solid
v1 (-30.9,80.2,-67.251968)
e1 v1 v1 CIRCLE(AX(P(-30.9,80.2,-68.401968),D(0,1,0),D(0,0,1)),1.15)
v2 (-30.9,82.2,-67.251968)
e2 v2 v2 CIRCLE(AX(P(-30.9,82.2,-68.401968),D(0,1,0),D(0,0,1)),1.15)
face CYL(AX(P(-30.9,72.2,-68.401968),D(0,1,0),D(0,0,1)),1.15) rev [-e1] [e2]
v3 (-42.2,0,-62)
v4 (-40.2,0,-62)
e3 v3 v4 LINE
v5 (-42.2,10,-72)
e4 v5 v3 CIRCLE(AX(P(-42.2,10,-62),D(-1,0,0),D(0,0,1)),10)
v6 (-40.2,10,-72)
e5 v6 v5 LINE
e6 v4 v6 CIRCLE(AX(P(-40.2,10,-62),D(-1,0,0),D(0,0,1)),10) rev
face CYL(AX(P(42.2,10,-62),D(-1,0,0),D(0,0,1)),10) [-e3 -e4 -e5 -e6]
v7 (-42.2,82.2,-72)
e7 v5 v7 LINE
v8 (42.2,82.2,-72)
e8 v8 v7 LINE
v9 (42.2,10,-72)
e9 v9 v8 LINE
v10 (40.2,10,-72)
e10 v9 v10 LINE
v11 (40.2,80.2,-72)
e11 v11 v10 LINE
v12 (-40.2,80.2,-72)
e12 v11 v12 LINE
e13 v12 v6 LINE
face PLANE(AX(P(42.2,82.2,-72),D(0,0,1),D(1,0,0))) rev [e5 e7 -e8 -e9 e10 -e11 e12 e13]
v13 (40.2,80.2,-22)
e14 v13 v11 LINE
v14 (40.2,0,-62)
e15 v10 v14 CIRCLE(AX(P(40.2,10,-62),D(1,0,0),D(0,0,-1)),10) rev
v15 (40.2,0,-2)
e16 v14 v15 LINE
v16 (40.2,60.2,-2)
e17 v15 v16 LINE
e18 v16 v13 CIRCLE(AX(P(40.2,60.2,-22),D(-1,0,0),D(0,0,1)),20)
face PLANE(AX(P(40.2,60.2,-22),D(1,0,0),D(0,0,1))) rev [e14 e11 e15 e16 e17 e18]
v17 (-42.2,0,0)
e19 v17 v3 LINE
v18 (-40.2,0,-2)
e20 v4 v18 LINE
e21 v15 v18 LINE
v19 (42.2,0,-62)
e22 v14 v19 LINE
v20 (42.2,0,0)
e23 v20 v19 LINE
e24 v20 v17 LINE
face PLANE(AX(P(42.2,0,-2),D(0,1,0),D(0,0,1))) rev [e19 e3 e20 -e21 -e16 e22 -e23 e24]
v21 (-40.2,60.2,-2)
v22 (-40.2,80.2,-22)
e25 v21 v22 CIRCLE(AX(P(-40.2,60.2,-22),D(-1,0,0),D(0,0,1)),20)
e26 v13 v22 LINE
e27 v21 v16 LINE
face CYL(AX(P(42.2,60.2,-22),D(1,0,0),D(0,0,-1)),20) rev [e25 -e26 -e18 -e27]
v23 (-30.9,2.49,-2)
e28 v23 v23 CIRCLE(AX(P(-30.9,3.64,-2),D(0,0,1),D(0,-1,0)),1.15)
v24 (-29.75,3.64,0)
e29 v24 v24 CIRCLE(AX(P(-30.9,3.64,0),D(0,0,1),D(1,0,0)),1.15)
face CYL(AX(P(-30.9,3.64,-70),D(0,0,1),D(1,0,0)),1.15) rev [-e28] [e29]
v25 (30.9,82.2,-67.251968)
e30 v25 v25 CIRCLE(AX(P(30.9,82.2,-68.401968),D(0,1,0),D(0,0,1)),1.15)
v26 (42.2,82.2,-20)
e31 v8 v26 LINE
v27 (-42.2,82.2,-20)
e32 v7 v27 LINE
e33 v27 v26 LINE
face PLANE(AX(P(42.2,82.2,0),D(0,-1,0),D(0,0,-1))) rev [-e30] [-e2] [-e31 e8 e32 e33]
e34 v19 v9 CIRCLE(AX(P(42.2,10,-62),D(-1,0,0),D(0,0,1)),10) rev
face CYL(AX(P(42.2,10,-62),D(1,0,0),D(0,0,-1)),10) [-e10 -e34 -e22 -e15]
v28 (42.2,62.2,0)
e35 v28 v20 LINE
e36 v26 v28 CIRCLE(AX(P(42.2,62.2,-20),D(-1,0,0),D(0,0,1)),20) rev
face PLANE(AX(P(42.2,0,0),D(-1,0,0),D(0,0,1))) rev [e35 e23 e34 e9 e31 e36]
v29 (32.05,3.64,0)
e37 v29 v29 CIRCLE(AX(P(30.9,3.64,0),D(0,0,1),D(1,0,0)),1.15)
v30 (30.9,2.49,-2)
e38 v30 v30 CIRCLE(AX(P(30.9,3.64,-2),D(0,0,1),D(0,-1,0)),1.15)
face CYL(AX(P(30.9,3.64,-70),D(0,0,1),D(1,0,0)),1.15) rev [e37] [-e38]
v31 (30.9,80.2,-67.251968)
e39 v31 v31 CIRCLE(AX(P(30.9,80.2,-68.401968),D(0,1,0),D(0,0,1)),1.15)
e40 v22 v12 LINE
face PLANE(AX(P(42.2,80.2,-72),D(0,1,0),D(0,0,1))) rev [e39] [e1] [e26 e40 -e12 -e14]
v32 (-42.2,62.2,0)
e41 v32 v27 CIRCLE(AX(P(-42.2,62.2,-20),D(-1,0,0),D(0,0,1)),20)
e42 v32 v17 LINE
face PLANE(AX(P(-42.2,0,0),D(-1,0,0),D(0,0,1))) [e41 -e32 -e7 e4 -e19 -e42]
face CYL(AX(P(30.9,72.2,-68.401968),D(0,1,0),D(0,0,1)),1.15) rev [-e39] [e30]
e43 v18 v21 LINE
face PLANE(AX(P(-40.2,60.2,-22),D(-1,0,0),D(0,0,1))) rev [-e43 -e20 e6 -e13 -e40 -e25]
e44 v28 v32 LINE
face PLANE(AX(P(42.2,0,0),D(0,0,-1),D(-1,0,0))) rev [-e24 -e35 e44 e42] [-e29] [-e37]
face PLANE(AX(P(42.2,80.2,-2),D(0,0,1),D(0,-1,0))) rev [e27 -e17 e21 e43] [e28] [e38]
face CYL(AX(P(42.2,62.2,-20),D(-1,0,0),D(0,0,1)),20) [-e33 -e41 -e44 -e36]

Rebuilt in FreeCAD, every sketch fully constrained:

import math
import FreeCAD as App
import Part
import Sketcher
Q = App.Units.Quantity


def edges_at(feature, points):
    """Names of the edges that pass closest to the given points."""
    edges = feature.Shape.Edges
    near = lambda p: min(range(len(edges)), key=lambda i: edges[i].distToShape(Part.Vertex(*p))[0])
    return sorted({f"Edge{near(p) + 1}" for p in points})

doc = App.newDocument("Part")
body = doc.addObject("PartDesign::Body", "Body")

# Sketch on YZ plane
sketch1 = body.newObject("Sketcher::SketchObject", "Sketch")
sketch1.AttachmentSupport = (doc.getObject("YZ_Plane"), [""])
sketch1.MapMode = "FlatFace"
sketch1.addGeometry(Part.LineSegment(App.Vector(82.2, 0, 0), App.Vector(0, 0, 0)), False)
sketch1.addGeometry(Part.LineSegment(App.Vector(0, 0, 0), App.Vector(0, -2, 0)), False)
sketch1.addGeometry(Part.LineSegment(App.Vector(0, -2, 0), App.Vector(80.2, -2, 0)), False)
sketch1.addGeometry(Part.LineSegment(App.Vector(80.2, -2, 0), App.Vector(80.2, -72, 0)), False)
sketch1.addGeometry(Part.LineSegment(App.Vector(80.2, -72, 0), App.Vector(82.2, -72, 0)), False)
sketch1.addGeometry(Part.LineSegment(App.Vector(82.2, -72, 0), App.Vector(82.2, 0, 0)), False)
sketch1.addConstraint(Sketcher.Constraint("Coincident", 0, 2, 1, 1))
sketch1.addConstraint(Sketcher.Constraint("Coincident", 1, 2, 2, 1))
sketch1.addConstraint(Sketcher.Constraint("Coincident", 2, 2, 3, 1))
sketch1.addConstraint(Sketcher.Constraint("Coincident", 3, 2, 4, 1))
sketch1.addConstraint(Sketcher.Constraint("Coincident", 4, 2, 5, 1))
sketch1.addConstraint(Sketcher.Constraint("Coincident", 5, 2, 0, 1))
sketch1.addConstraint(Sketcher.Constraint("Horizontal", 0))
sketch1.addConstraint(Sketcher.Constraint("Vertical", 1))
sketch1.addConstraint(Sketcher.Constraint("Horizontal", 2))
sketch1.addConstraint(Sketcher.Constraint("Vertical", 3))
sketch1.addConstraint(Sketcher.Constraint("Horizontal", 4))
sketch1.addConstraint(Sketcher.Constraint("Vertical", 5))
sketch1.addConstraint(Sketcher.Constraint("Coincident", 0, 2, -1, 1))
sketch1.addConstraint(Sketcher.Constraint("Equal", 4, 1))
sketch1.addConstraint(Sketcher.Constraint("DistanceX", 4, 1, 4, 2, Q("2 mm")))
sketch1.addConstraint(Sketcher.Constraint("DistanceY", 3, 2, 3, 1, Q("70 mm")))
sketch1.addConstraint(Sketcher.Constraint("DistanceX", 0, 2, 0, 1, Q("82.2 mm")))
pad1 = body.newObject("PartDesign::Pad", "Pad")
pad1.Profile = sketch1
pad1.Length = 84.4
pad1.Midplane = True

# Sketch on XY plane
sketch2 = body.newObject("Sketcher::SketchObject", "Sketch001")
sketch2.AttachmentSupport = (doc.getObject("XY_Plane"), [""])
sketch2.MapMode = "FlatFace"
sketch2.addGeometry(Part.Circle(App.Vector(-30.9, 3.6, 0), App.Vector(0, 0, 1), 1.1), False)
sketch2.addGeometry(Part.Circle(App.Vector(30.9, 3.6, 0), App.Vector(0, 0, 1), 1.1), False)
sketch2.addConstraint(Sketcher.Constraint("Equal", 0, 1))
sketch2.addConstraint(Sketcher.Constraint("Symmetric", 0, 3, 1, 3, -2))
sketch2.addConstraint(Sketcher.Constraint("Diameter", 0, Q("2.3 mm")))
sketch2.addConstraint(Sketcher.Constraint("DistanceX", 0, 3, -1, 1, Q("30.9 mm")))
sketch2.addConstraint(Sketcher.Constraint("DistanceY", -1, 1, 0, 3, Q("3.64 mm")))
pocket1 = body.newObject("PartDesign::Pocket", "Pocket")
pocket1.Profile = sketch2
pocket1.Length = 70
doc.recompute()

fillet = body.newObject("PartDesign::Fillet", "Fillet")
fillet.Base = (pocket1, edges_at(pocket1, [(0, 82.2, 0), (0, 80.2, -2)]))
fillet.Radius = 20

# Sketch on YZ plane
sketch3 = body.newObject("Sketcher::SketchObject", "Sketch002")
sketch3.AttachmentSupport = (doc.getObject("YZ_Plane"), [""])
sketch3.MapMode = "FlatFace"
sketch3.AttachmentOffset = App.Placement(App.Vector(0, 0, -42.2), App.Rotation())
sketch3.addGeometry(Part.LineSegment(App.Vector(80, -72, 0), App.Vector(0, -72, 0)), False)
sketch3.addGeometry(Part.LineSegment(App.Vector(0, -72, 0), App.Vector(0, -2, 0)), False)
sketch3.addGeometry(Part.LineSegment(App.Vector(0, -2, 0), App.Vector(60, -2, 0)), False)
sketch3.addGeometry(Part.ArcOfCircle(Part.Circle(App.Vector(60, -22, 0), App.Vector(0, 0, 1), 20), math.radians(0), math.radians(90)), False)
sketch3.addGeometry(Part.LineSegment(App.Vector(80, -22, 0), App.Vector(80, -72, 0)), False)
sketch3.addConstraint(Sketcher.Constraint("Coincident", 0, 2, 1, 1))
sketch3.addConstraint(Sketcher.Constraint("Coincident", 1, 2, 2, 1))
sketch3.addConstraint(Sketcher.Constraint("Tangent", 2, 2, 3, 2))
sketch3.addConstraint(Sketcher.Constraint("Tangent", 3, 1, 4, 1))
sketch3.addConstraint(Sketcher.Constraint("Coincident", 4, 2, 0, 1))
sketch3.addConstraint(Sketcher.Constraint("Horizontal", 0))
sketch3.addConstraint(Sketcher.Constraint("Vertical", 1))
sketch3.addConstraint(Sketcher.Constraint("Horizontal", 2))
sketch3.addConstraint(Sketcher.Constraint("Vertical", 4))
sketch3.addConstraint(Sketcher.Constraint("PointOnObject", 0, 2, -2))
sketch3.addConstraint(Sketcher.Constraint("Radius", 3, Q("20 mm")))
sketch3.addConstraint(Sketcher.Constraint("DistanceY", 1, 1, 1, 2, Q("70 mm")))
sketch3.addConstraint(Sketcher.Constraint("DistanceX", 0, 2, 0, 1, Q("80.2 mm")))
sketch3.addConstraint(Sketcher.Constraint("DistanceY", 3, 3, -1, 1, Q("22 mm")))
pad2 = body.newObject("PartDesign::Pad", "Pad001")
pad2.Profile = sketch3
pad2.Length = 2
doc.recompute()

mirrored = body.newObject("PartDesign::Mirrored", "Mirrored")
mirrored.Originals = [pad2]
mirrored.MirrorPlane = (doc.getObject("YZ_Plane"), [""])
body.Tip = mirrored
doc.recompute()

fillet2 = body.newObject("PartDesign::Fillet", "Fillet001")
fillet2.Base = (mirrored, edges_at(mirrored, [(-41.2, 0, -72), (41.2, 0, -72)]))
fillet2.Radius = 10

# Sketch on XZ plane
sketch4 = body.newObject("Sketcher::SketchObject", "Sketch003")
sketch4.AttachmentSupport = (doc.getObject("XZ_Plane"), [""])
sketch4.MapMode = "FlatFace"
sketch4.AttachmentOffset = App.Placement(App.Vector(0, 0, -82.2), App.Rotation())
sketch4.addGeometry(Part.Circle(App.Vector(-30.9, -68.4, 0), App.Vector(0, 0, 1), 1.1), False)
sketch4.addGeometry(Part.Circle(App.Vector(30.9, -68.4, 0), App.Vector(0, 0, 1), 1.1), False)
sketch4.addConstraint(Sketcher.Constraint("Equal", 0, 1))
sketch4.addConstraint(Sketcher.Constraint("Symmetric", 0, 3, 1, 3, -2))
sketch4.addConstraint(Sketcher.Constraint("Diameter", 0, Q("2.3 mm")))
sketch4.addConstraint(Sketcher.Constraint("DistanceX", 0, 3, -1, 1, Q("30.9 mm")))
sketch4.addConstraint(Sketcher.Constraint("DistanceY", 0, 3, -1, 1, Q("68.401968 mm")))
pocket2 = body.newObject("PartDesign::Pocket", "Pocket001")
pocket2.Profile = sketch4
pocket2.Length = 10
pocket2.Reversed = True

doc.recompute()
